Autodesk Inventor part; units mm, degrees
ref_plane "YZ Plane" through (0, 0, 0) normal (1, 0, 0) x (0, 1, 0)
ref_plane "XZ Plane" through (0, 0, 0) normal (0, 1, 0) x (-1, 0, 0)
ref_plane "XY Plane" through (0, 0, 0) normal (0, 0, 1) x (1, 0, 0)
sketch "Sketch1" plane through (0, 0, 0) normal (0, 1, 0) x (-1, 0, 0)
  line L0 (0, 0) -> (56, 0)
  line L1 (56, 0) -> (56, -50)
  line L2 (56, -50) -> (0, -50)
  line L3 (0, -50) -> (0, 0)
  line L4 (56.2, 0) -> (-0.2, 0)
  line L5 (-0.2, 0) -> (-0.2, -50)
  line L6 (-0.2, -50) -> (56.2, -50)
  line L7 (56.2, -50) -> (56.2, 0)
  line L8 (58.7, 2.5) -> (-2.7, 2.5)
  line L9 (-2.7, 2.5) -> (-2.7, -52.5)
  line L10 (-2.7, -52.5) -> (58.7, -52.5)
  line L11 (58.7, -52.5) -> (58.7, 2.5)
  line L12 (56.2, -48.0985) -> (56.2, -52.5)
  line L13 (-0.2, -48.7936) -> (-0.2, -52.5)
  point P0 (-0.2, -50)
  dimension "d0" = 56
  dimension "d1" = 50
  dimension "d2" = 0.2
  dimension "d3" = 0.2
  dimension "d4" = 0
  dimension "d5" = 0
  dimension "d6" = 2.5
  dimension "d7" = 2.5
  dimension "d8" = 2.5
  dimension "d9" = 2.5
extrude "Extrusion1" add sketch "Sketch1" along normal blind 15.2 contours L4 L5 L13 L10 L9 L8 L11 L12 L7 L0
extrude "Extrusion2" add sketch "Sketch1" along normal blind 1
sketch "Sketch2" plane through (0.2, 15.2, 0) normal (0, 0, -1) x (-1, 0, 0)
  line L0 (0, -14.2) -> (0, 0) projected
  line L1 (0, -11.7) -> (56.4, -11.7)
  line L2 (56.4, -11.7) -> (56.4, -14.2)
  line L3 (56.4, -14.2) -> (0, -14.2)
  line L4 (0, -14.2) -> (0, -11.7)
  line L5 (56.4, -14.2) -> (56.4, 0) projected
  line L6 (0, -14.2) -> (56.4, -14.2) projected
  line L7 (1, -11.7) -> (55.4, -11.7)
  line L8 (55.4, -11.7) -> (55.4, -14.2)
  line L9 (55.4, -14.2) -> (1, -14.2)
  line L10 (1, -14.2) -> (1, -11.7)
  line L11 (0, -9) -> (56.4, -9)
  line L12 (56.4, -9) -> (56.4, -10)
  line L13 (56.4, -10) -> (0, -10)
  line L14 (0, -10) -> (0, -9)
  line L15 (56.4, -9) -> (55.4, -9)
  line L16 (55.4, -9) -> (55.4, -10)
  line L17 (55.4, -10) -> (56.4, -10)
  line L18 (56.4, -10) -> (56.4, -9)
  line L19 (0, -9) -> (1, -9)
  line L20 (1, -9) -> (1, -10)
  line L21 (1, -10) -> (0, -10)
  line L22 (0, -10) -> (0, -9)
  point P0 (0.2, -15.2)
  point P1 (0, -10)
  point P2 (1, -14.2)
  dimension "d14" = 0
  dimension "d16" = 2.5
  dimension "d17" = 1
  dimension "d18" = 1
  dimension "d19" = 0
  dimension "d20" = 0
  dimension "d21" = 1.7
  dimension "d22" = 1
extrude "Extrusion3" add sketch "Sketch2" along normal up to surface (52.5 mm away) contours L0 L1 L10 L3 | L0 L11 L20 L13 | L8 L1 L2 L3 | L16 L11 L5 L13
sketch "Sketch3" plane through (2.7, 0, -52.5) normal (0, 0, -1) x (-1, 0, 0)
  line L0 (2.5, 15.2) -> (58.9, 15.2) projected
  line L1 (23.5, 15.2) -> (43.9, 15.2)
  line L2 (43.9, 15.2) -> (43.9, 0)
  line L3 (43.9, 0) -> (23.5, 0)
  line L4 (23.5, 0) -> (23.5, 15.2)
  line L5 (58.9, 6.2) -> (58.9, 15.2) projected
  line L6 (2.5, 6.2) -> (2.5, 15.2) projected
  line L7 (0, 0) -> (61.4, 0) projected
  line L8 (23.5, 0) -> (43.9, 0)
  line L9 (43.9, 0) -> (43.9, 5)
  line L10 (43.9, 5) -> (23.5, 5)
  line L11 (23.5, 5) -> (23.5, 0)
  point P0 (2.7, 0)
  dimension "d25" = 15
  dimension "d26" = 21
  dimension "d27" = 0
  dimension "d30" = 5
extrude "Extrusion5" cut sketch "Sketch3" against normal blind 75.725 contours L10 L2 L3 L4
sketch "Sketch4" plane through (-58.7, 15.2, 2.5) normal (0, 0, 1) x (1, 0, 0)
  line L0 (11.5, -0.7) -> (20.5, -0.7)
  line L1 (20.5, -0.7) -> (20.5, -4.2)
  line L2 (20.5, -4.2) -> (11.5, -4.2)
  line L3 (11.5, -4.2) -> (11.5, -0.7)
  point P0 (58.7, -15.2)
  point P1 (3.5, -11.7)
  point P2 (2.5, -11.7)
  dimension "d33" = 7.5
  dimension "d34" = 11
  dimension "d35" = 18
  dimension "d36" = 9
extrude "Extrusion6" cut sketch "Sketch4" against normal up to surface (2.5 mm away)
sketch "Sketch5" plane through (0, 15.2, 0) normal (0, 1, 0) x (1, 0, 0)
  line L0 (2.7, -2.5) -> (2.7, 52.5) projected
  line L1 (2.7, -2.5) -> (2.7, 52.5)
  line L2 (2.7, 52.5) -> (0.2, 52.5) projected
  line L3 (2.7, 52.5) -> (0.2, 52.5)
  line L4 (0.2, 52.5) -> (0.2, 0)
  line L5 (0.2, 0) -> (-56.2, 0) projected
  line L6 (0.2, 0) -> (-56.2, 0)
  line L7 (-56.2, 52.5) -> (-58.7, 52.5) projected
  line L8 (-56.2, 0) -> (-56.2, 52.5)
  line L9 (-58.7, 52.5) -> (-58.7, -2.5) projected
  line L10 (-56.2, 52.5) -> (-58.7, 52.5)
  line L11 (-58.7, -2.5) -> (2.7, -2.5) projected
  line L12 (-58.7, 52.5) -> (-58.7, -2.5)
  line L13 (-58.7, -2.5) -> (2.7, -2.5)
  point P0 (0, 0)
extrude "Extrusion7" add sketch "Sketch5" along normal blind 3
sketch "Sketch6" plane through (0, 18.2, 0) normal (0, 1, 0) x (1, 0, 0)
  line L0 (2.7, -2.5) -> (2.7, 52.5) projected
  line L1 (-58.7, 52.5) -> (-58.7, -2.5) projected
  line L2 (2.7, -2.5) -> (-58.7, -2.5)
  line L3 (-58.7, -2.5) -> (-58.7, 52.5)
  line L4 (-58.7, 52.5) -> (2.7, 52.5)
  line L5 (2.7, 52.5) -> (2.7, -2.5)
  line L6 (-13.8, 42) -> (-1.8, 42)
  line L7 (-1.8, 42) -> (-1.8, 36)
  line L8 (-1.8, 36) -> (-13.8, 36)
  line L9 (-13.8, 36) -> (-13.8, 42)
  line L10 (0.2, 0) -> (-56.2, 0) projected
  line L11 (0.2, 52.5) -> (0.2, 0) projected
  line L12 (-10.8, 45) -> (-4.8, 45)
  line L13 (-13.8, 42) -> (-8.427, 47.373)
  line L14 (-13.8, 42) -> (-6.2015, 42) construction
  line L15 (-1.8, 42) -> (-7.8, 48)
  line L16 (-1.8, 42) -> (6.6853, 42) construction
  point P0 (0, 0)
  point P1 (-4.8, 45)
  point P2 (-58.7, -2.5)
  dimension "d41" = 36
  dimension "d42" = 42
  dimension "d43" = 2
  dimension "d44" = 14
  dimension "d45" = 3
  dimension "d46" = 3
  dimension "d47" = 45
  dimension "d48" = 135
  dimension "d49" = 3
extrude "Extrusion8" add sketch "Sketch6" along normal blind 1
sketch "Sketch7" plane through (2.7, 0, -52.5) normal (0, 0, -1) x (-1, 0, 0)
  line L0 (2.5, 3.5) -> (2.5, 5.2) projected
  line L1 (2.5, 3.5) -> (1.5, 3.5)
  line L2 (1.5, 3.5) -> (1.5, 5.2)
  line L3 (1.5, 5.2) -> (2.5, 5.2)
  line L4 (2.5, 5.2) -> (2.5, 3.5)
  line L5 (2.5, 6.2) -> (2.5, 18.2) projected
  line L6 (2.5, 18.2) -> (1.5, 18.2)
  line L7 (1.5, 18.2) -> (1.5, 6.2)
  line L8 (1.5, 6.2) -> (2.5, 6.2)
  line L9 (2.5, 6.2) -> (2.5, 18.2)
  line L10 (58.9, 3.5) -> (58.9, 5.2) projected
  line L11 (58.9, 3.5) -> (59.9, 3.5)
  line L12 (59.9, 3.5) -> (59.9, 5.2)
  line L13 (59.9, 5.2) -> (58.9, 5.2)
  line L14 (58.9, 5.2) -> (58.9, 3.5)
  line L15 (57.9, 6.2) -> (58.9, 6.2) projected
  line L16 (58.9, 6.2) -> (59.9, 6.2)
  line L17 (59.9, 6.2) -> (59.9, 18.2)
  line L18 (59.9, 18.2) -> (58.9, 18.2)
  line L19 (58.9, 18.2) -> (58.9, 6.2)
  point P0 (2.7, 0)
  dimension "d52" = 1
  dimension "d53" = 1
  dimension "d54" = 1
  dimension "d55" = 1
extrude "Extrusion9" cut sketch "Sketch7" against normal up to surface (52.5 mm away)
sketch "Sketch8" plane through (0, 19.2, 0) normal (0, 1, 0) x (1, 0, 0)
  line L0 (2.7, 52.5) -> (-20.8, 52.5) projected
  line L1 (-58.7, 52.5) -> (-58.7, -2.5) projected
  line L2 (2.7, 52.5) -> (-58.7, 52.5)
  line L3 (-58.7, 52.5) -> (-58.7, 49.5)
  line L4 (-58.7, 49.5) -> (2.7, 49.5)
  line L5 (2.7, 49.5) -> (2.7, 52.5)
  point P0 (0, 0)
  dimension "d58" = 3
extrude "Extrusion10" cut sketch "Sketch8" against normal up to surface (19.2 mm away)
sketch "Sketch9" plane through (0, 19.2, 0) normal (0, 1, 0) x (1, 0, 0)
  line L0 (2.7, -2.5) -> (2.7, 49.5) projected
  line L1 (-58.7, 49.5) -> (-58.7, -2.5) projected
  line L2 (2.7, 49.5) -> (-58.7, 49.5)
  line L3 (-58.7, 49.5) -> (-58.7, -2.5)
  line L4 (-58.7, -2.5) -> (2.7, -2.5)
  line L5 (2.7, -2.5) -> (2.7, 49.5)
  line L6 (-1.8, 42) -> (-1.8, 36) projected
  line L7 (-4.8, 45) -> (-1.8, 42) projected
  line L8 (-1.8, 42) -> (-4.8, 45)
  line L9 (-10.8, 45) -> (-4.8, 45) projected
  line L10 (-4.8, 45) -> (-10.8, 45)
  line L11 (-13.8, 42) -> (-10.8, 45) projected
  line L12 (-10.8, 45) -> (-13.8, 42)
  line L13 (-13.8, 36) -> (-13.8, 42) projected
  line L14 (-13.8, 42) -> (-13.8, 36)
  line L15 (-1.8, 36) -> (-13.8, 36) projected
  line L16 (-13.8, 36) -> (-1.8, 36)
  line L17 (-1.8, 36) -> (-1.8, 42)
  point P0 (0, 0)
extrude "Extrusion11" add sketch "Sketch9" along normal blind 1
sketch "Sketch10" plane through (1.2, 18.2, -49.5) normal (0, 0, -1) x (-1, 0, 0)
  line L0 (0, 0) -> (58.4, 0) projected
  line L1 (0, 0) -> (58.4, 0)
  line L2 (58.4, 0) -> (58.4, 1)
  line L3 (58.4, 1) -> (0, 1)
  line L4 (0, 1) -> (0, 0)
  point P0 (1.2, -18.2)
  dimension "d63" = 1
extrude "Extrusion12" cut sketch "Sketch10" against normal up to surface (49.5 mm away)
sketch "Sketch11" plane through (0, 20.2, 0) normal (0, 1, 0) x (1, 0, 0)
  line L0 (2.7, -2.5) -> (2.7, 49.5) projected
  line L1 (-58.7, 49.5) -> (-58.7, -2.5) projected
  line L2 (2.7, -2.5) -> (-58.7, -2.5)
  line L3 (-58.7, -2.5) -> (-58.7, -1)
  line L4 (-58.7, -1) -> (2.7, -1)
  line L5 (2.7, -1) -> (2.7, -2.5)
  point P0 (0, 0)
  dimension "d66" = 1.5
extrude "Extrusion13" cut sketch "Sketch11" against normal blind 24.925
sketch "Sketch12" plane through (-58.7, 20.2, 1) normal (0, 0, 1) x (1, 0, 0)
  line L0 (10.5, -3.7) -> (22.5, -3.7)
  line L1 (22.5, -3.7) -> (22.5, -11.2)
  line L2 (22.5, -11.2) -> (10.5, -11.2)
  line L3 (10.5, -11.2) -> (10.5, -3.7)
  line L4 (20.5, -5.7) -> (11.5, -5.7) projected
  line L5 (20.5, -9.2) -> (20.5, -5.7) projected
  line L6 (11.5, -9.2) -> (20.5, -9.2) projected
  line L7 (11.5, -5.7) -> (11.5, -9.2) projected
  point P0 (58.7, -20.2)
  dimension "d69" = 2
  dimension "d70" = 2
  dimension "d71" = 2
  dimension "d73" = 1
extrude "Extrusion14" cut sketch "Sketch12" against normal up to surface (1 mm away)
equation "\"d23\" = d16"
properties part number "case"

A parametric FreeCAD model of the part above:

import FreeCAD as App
import Part
import Sketcher

V = App.Vector
Q = App.Units.Quantity

doc = App.newDocument("Part")
body = doc.addObject("PartDesign::Body", "Body")

sketch1 = body.newObject("Sketcher::SketchObject", "Sketch")
sketch1.AttachmentSupport = (doc.getObject("XZ_Plane"), [""])
sketch1.MapMode = "FlatFace"
sketch1.addGeometry([
    Part.LineSegment(V(0.2, 0, 0), V(-56.2, 0, 0)),
    Part.LineSegment(V(-56.2, 0, 0), V(-56.2, -52.5, 0)),
    Part.LineSegment(V(-56.2, -52.5, 0), V(-58.7, -52.5, 0)),
    Part.LineSegment(V(-58.7, -52.5, 0), V(-58.7, 2.5, 0)),
    Part.LineSegment(V(-58.7, 2.5, 0), V(2.7, 2.5, 0)),
    Part.LineSegment(V(2.7, 2.5, 0), V(2.7, -52.5, 0)),
    Part.LineSegment(V(2.7, -52.5, 0), V(0.2, -52.5, 0)),
    Part.LineSegment(V(0.2, -52.5, 0), V(0.2, 0, 0)),
], False)
sketch1.addConstraint([
    Sketcher.Constraint("Coincident", 0, 2, 1, 1),
    Sketcher.Constraint("Coincident", 1, 2, 2, 1),
    Sketcher.Constraint("Coincident", 2, 2, 3, 1),
    Sketcher.Constraint("Coincident", 3, 2, 4, 1),
    Sketcher.Constraint("Coincident", 4, 2, 5, 1),
    Sketcher.Constraint("Coincident", 5, 2, 6, 1),
    Sketcher.Constraint("Coincident", 6, 2, 7, 1),
    Sketcher.Constraint("Coincident", 7, 2, 0, 1),
    Sketcher.Constraint("Horizontal", 0),
    Sketcher.Constraint("Vertical", 1),
    Sketcher.Constraint("Horizontal", 2),
    Sketcher.Constraint("Vertical", 3),
    Sketcher.Constraint("Horizontal", 4),
    Sketcher.Constraint("Vertical", 5),
    Sketcher.Constraint("Horizontal", 6),
    Sketcher.Constraint("Vertical", 7),
    Sketcher.Constraint("PointOnObject", 0, 2, -1),
    Sketcher.Constraint("Horizontal", 2, 2, 5, 2),
    Sketcher.Constraint("Equal", 2, 6),
    Sketcher.Constraint("DistanceX", 2, 2, 2, 1, Q("2.5 mm")),
    Sketcher.Constraint("DistanceY", -1, 1, 3, 2, Q("2.5 mm")),
    Sketcher.Constraint("DistanceX", -1, 1, 6, 2, Q("0.2 mm")),
    Sketcher.Constraint("DistanceY", 3, 1, 3, 2, Q("55 mm")),
    Sketcher.Constraint("DistanceX", 0, 2, 0, 1, Q("56.4 mm")),
])
pad1 = body.newObject("PartDesign::Pad", "Pad")
pad1.Profile = sketch1
pad1.Length = 15.2
pad1.Reversed = True

sketch2 = body.newObject("Sketcher::SketchObject", "Sketch001")
sketch2.AttachmentSupport = (doc.getObject("XZ_Plane"), [""])
sketch2.MapMode = "FlatFace"
sketch2.addGeometry([
    Part.LineSegment(V(3, -52, 0), V(-59, -52, 0)),
    Part.LineSegment(V(-59, -52, 0), V(-59, 2, 0)),
    Part.LineSegment(V(-59, 2, 0), V(3, 2, 0)),
    Part.LineSegment(V(3, 2, 0), V(3, -52, 0)),
], False)
sketch2.addConstraint([
    Sketcher.Constraint("Coincident", 0, 2, 1, 1),
    Sketcher.Constraint("Coincident", 1, 2, 2, 1),
    Sketcher.Constraint("Coincident", 2, 2, 3, 1),
    Sketcher.Constraint("Coincident", 3, 2, 0, 1),
    Sketcher.Constraint("Horizontal", 0),
    Sketcher.Constraint("Vertical", 1),
    Sketcher.Constraint("Horizontal", 2),
    Sketcher.Constraint("Vertical", 3),
    Sketcher.Constraint("DistanceY", -1, 1, 1, 2, Q("2.5 mm")),
    Sketcher.Constraint("DistanceY", 1, 1, 1, 2, Q("55 mm")),
    Sketcher.Constraint("DistanceX", 0, 2, 0, 1, Q("61.4 mm")),
    Sketcher.Constraint("DistanceX", 0, 2, -1, 1, Q("58.7 mm")),
])
pad2 = body.newObject("PartDesign::Pad", "Pad001")
pad2.Profile = sketch2
pad2.Length = 1
pad2.Reversed = True

sketch3 = body.newObject("Sketcher::SketchObject", "Sketch002")
sketch3.AttachmentSupport = (doc.getObject("XY_Plane"), [""])
sketch3.MapMode = "FlatFace"
sketch3.addGeometry([
    Part.LineSegment(V(0.2, 3.5, 0), V(0.2, 1, 0)),
    Part.LineSegment(V(0.2, 1, 0), V(-0.8, 1, 0)),
    Part.LineSegment(V(-0.8, 1, 0), V(-0.8, 3.5, 0)),
    Part.LineSegment(V(-0.8, 3.5, 0), V(0.2, 3.5, 0)),
    Part.LineSegment(V(0.2, 6.2, 0), V(0.2, 5.2, 0)),
    Part.LineSegment(V(0.2, 5.2, 0), V(-0.8, 5.2, 0)),
    Part.LineSegment(V(-0.8, 5.2, 0), V(-0.8, 6.2, 0)),
    Part.LineSegment(V(-0.8, 6.2, 0), V(0.2, 6.2, 0)),
    Part.LineSegment(V(-55.2, 3.5, 0), V(-55.2, 1, 0)),
    Part.LineSegment(V(-55.2, 1, 0), V(-56.2, 1, 0)),
    Part.LineSegment(V(-56.2, 1, 0), V(-56.2, 3.5, 0)),
    Part.LineSegment(V(-56.2, 3.5, 0), V(-55.2, 3.5, 0)),
    Part.LineSegment(V(-55.2, 6.2, 0), V(-55.2, 5.2, 0)),
    Part.LineSegment(V(-55.2, 5.2, 0), V(-56.2, 5.2, 0)),
    Part.LineSegment(V(-56.2, 5.2, 0), V(-56.2, 6.2, 0)),
    Part.LineSegment(V(-56.2, 6.2, 0), V(-55.2, 6.2, 0)),
], False)
sketch3.addConstraint([
    Sketcher.Constraint("Coincident", 0, 2, 1, 1),
    Sketcher.Constraint("Coincident", 1, 2, 2, 1),
    Sketcher.Constraint("Coincident", 2, 2, 3, 1),
    Sketcher.Constraint("Coincident", 3, 2, 0, 1),
    Sketcher.Constraint("Coincident", 4, 2, 5, 1),
    Sketcher.Constraint("Coincident", 5, 2, 6, 1),
    Sketcher.Constraint("Coincident", 6, 2, 7, 1),
    Sketcher.Constraint("Coincident", 7, 2, 4, 1),
    Sketcher.Constraint("Coincident", 8, 2, 9, 1),
    Sketcher.Constraint("Coincident", 9, 2, 10, 1),
    Sketcher.Constraint("Coincident", 10, 2, 11, 1),
    Sketcher.Constraint("Coincident", 11, 2, 8, 1),
    Sketcher.Constraint("Coincident", 12, 2, 13, 1),
    Sketcher.Constraint("Coincident", 13, 2, 14, 1),
    Sketcher.Constraint("Coincident", 14, 2, 15, 1),
    Sketcher.Constraint("Coincident", 15, 2, 12, 1),
    Sketcher.Constraint("Vertical", 0),
    Sketcher.Constraint("Horizontal", 1),
    Sketcher.Constraint("Vertical", 2),
    Sketcher.Constraint("Horizontal", 3),
    Sketcher.Constraint("Vertical", 4),
    Sketcher.Constraint("Horizontal", 5),
    Sketcher.Constraint("Vertical", 6),
    Sketcher.Constraint("Horizontal", 7),
    Sketcher.Constraint("Vertical", 8),
    Sketcher.Constraint("Horizontal", 9),
    Sketcher.Constraint("Vertical", 10),
    Sketcher.Constraint("Horizontal", 11),
    Sketcher.Constraint("Vertical", 12),
    Sketcher.Constraint("Horizontal", 13),
    Sketcher.Constraint("Vertical", 14),
    Sketcher.Constraint("Horizontal", 15),
    Sketcher.Constraint("Horizontal", 1, 2, 8, 2),
    Sketcher.Constraint("Horizontal", 3, 2, 10, 2),
    Sketcher.Constraint("Horizontal", 5, 2, 12, 2),
    Sketcher.Constraint("Horizontal", 7, 2, 14, 2),
    Sketcher.Constraint("Vertical", 3, 2, 4, 2),
    Sketcher.Constraint("Vertical", 2, 2, 5, 2),
    Sketcher.Constraint("Vertical", 11, 2, 12, 2),
    Sketcher.Constraint("Vertical", 10, 2, 13, 2),
    Sketcher.Constraint("Equal", 7, 9),
    Sketcher.Constraint("Equal", 15, 4),
    Sketcher.Constraint("DistanceX", 1, 2, 1, 1, Q("1 mm")),
    Sketcher.Constraint("DistanceY", 0, 2, 0, 1, Q("2.5 mm")),
    Sketcher.Constraint("DistanceY", -1, 1, 0, 2, Q("1 mm")),
    Sketcher.Constraint("DistanceY", 3, 2, 4, 2, Q("1.7 mm")),
    Sketcher.Constraint("DistanceX", -1, 1, 0, 2, Q("0.2 mm")),
    Sketcher.Constraint("DistanceX", 8, 2, -1, 1, Q("55.2 mm")),
])
pad3 = body.newObject("PartDesign::Pad", "Pad002")
pad3.Profile = sketch3
pad3.Length = 52.5
pad3.Reversed = True

sketch4 = body.newObject("Sketcher::SketchObject", "Sketch003")
sketch4.AttachmentSupport = (doc.getObject("XY_Plane"), [""])
sketch4.MapMode = "FlatFace"
sketch4.AttachmentOffset = App.Placement(V(0, 0, -52.5), App.Rotation())
sketch4.addGeometry([
    Part.LineSegment(V(-41, 5, 0), V(-21, 5, 0)),
    Part.LineSegment(V(-21, 5, 0), V(-21, 0, 0)),
    Part.LineSegment(V(-21, 0, 0), V(-41, 0, 0)),
    Part.LineSegment(V(-41, 0, 0), V(-41, 5, 0)),
], False)
sketch4.addConstraint([
    Sketcher.Constraint("Coincident", 0, 2, 1, 1),
    Sketcher.Constraint("Coincident", 1, 2, 2, 1),
    Sketcher.Constraint("Coincident", 2, 2, 3, 1),
    Sketcher.Constraint("Coincident", 3, 2, 0, 1),
    Sketcher.Constraint("Horizontal", 0),
    Sketcher.Constraint("Vertical", 1),
    Sketcher.Constraint("Horizontal", 2),
    Sketcher.Constraint("Vertical", 3),
    Sketcher.Constraint("PointOnObject", 1, 2, -1),
    Sketcher.Constraint("DistanceY", 1, 2, 1, 1, Q("5 mm")),
    Sketcher.Constraint("DistanceX", 0, 1, 0, 2, Q("20.4 mm")),
    Sketcher.Constraint("DistanceX", 0, 2, -1, 1, Q("20.8 mm")),
])
pocket1 = body.newObject("PartDesign::Pocket", "Pocket")
pocket1.Profile = sketch4
pocket1.Length = 75.725
pocket1.Reversed = True

sketch5 = body.newObject("Sketcher::SketchObject", "Sketch004")
sketch5.AttachmentSupport = (doc.getObject("XY_Plane"), [""])
sketch5.MapMode = "FlatFace"
sketch5.AttachmentOffset = App.Placement(V(0, 0, 2.5), App.Rotation())
sketch5.addGeometry([
    Part.LineSegment(V(-38.2, 14.5, 0), V(-47.2, 14.5, 0)),
    Part.LineSegment(V(-47.2, 14.5, 0), V(-47.2, 11, 0)),
    Part.LineSegment(V(-47.2, 11, 0), V(-38.2, 11, 0)),
    Part.LineSegment(V(-38.2, 11, 0), V(-38.2, 14.5, 0)),
], False)
sketch5.addConstraint([
    Sketcher.Constraint("Coincident", 0, 2, 1, 1),
    Sketcher.Constraint("Coincident", 1, 2, 2, 1),
    Sketcher.Constraint("Coincident", 2, 2, 3, 1),
    Sketcher.Constraint("Coincident", 3, 2, 0, 1),
    Sketcher.Constraint("Horizontal", 0),
    Sketcher.Constraint("Vertical", 1),
    Sketcher.Constraint("Horizontal", 2),
    Sketcher.Constraint("Vertical", 3),
    Sketcher.Constraint("DistanceX", 0, 2, 0, 1, Q("9 mm")),
    Sketcher.Constraint("DistanceY", -1, 1, 1, 2, Q("11 mm")),
    Sketcher.Constraint("DistanceY", 1, 2, 1, 1, Q("3.5 mm")),
    Sketcher.Constraint("DistanceX", 0, 2, -1, 1, Q("47.2 mm")),
])
pocket2 = body.newObject("PartDesign::Pocket", "Pocket001")
pocket2.Profile = sketch5
pocket2.Length = 2.5

sketch6 = body.newObject("Sketcher::SketchObject", "Sketch005")
sketch6.AttachmentSupport = (doc.getObject("XZ_Plane"), [""])
sketch6.MapMode = "FlatFace"
sketch6.AttachmentOffset = App.Placement(V(0, 0, -15.2), App.Rotation())
sketch6.addGeometry([
    Part.LineSegment(V(-58.7, 2.5, 0), V(2.7, 2.5, 0)),
    Part.LineSegment(V(2.7, 2.5, 0), V(2.7, -52.5, 0)),
    Part.LineSegment(V(2.7, -52.5, 0), V(0.2, -52.5, 0)),
    Part.LineSegment(V(0.2, -52.5, 0), V(0.2, 0, 0)),
    Part.LineSegment(V(0.2, 0, 0), V(-56.2, 0, 0)),
    Part.LineSegment(V(-56.2, 0, 0), V(-56.2, -52.5, 0)),
    Part.LineSegment(V(-56.2, -52.5, 0), V(-58.7, -52.5, 0)),
    Part.LineSegment(V(-58.7, -52.5, 0), V(-58.7, 2.5, 0)),
], False)
sketch6.addConstraint([
    Sketcher.Constraint("Coincident", 0, 2, 1, 1),
    Sketcher.Constraint("Coincident", 1, 2, 2, 1),
    Sketcher.Constraint("Coincident", 2, 2, 3, 1),
    Sketcher.Constraint("Coincident", 3, 2, 4, 1),
    Sketcher.Constraint("Coincident", 4, 2, 5, 1),
    Sketcher.Constraint("Coincident", 5, 2, 6, 1),
    Sketcher.Constraint("Coincident", 6, 2, 7, 1),
    Sketcher.Constraint("Coincident", 7, 2, 0, 1),
    Sketcher.Constraint("Horizontal", 0),
    Sketcher.Constraint("Vertical", 1),
    Sketcher.Constraint("Horizontal", 2),
    Sketcher.Constraint("Vertical", 3),
    Sketcher.Constraint("Horizontal", 4),
    Sketcher.Constraint("Vertical", 5),
    Sketcher.Constraint("Horizontal", 6),
    Sketcher.Constraint("Vertical", 7),
    Sketcher.Constraint("PointOnObject", 3, 2, -1),
    Sketcher.Constraint("Horizontal", 2, 2, 5, 2),
    Sketcher.Constraint("Equal", 2, 6),
    Sketcher.Constraint("DistanceY", 1, 2, 1, 1, Q("55 mm")),
    Sketcher.Constraint("DistanceX", 0, 1, 0, 2, Q("61.4 mm")),
    Sketcher.Constraint("DistanceX", 2, 2, 2, 1, Q("2.5 mm")),
    Sketcher.Constraint("DistanceY", 3, 1, 3, 2, Q("52.5 mm")),
    Sketcher.Constraint("DistanceX", -1, 1, 0, 2, Q("2.7 mm")),
])
pad4 = body.newObject("PartDesign::Pad", "Pad003")
pad4.Profile = sketch6
pad4.Length = 3
pad4.Reversed = True

sketch7 = body.newObject("Sketcher::SketchObject", "Sketch006")
sketch7.AttachmentSupport = (doc.getObject("XZ_Plane"), [""])
sketch7.MapMode = "FlatFace"
sketch7.AttachmentOffset = App.Placement(V(0, 0, -18.2), App.Rotation())
sketch7.addGeometry([
    Part.LineSegment(V(-58.7, 2.5, 0), V(2.7, 2.5, 0)),
    Part.LineSegment(V(2.7, 2.5, 0), V(2.7, -52.5, 0)),
    Part.LineSegment(V(2.7, -52.5, 0), V(-58.7, -52.5, 0)),
    Part.LineSegment(V(-58.7, -52.5, 0), V(-58.7, 2.5, 0)),
    Part.LineSegment(V(-13.8, -36, 0), V(-13.8, -42, 0)),
    Part.LineSegment(V(-13.8, -42, 0), V(-10.8, -45, 0)),
    Part.LineSegment(V(-10.8, -45, 0), V(-4.8, -45, 0)),
    Part.LineSegment(V(-4.8, -45, 0), V(-1.8, -42, 0)),
    Part.LineSegment(V(-1.8, -42, 0), V(-1.8, -36, 0)),
    Part.LineSegment(V(-1.8, -36, 0), V(-13.8, -36, 0)),
], False)
sketch7.addConstraint([
    Sketcher.Constraint("Coincident", 0, 2, 1, 1),
    Sketcher.Constraint("Coincident", 1, 2, 2, 1),
    Sketcher.Constraint("Coincident", 2, 2, 3, 1),
    Sketcher.Constraint("Coincident", 3, 2, 0, 1),
    Sketcher.Constraint("Coincident", 4, 2, 5, 1),
    Sketcher.Constraint("Coincident", 5, 2, 6, 1),
    Sketcher.Constraint("Coincident", 6, 2, 7, 1),
    Sketcher.Constraint("Coincident", 7, 2, 8, 1),
    Sketcher.Constraint("Coincident", 8, 2, 9, 1),
    Sketcher.Constraint("Coincident", 9, 2, 4, 1),
    Sketcher.Constraint("Horizontal", 0),
    Sketcher.Constraint("Vertical", 1),
    Sketcher.Constraint("Horizontal", 2),
    Sketcher.Constraint("Vertical", 3),
    Sketcher.Constraint("Vertical", 4),
    Sketcher.Constraint("Horizontal", 6),
    Sketcher.Constraint("Vertical", 8),
    Sketcher.Constraint("Horizontal", 9),
    Sketcher.Constraint("Perpendicular", 5, 7),
    Sketcher.Constraint("Horizontal", 4, 2, 7, 2),
    Sketcher.Constraint("Equal", 6, 4),
    Sketcher.Constraint("Equal", 5, 7),
    Sketcher.Constraint("DistanceY", 4, 2, -1, 1, Q("42 mm")),
    Sketcher.Constraint("DistanceY", 5, 2, -1, 1, Q("45 mm")),
    Sketcher.Constraint("DistanceY", 8, 2, -1, 1, Q("36 mm")),
    Sketcher.Constraint("DistanceY", 1, 2, 1, 1, Q("55 mm")),
    Sketcher.Constraint("DistanceX", 0, 1, 0, 2, Q("61.4 mm")),
    Sketcher.Constraint("DistanceX", -1, 1, 0, 2, Q("2.7 mm")),
    Sketcher.Constraint("DistanceY", -1, 1, 0, 2, Q("2.5 mm")),
    Sketcher.Constraint("DistanceX", 4, 2, -1, 1, Q("13.8 mm")),
])
pad5 = body.newObject("PartDesign::Pad", "Pad004")
pad5.Profile = sketch7
pad5.Length = 1
pad5.Reversed = True

sketch8 = body.newObject("Sketcher::SketchObject", "Sketch007")
sketch8.AttachmentSupport = (doc.getObject("XY_Plane"), [""])
sketch8.MapMode = "FlatFace"
sketch8.AttachmentOffset = App.Placement(V(0, 0, -52.5), App.Rotation())
sketch8.addGeometry([
    Part.LineSegment(V(1.2, 3.5, 0), V(0.2, 3.5, 0)),
    Part.LineSegment(V(0.2, 3.5, 0), V(0.2, 5.2, 0)),
    Part.LineSegment(V(0.2, 5.2, 0), V(1.2, 5.2, 0)),
    Part.LineSegment(V(1.2, 5.2, 0), V(1.2, 3.5, 0)),
    Part.LineSegment(V(1.2, 6.2, 0), V(0.2, 6.2, 0)),
    Part.LineSegment(V(0.2, 6.2, 0), V(0.2, 18.2, 0)),
    Part.LineSegment(V(0.2, 18.2, 0), V(1.2, 18.2, 0)),
    Part.LineSegment(V(1.2, 18.2, 0), V(1.2, 6.2, 0)),
    Part.LineSegment(V(-56.2, 5.2, 0), V(-56.2, 3.5, 0)),
    Part.LineSegment(V(-56.2, 3.5, 0), V(-57.2, 3.5, 0)),
    Part.LineSegment(V(-57.2, 3.5, 0), V(-57.2, 5.2, 0)),
    Part.LineSegment(V(-57.2, 5.2, 0), V(-56.2, 5.2, 0)),
    Part.LineSegment(V(-56.2, 18.2, 0), V(-56.2, 6.2, 0)),
    Part.LineSegment(V(-56.2, 6.2, 0), V(-57.2, 6.2, 0)),
    Part.LineSegment(V(-57.2, 6.2, 0), V(-57.2, 18.2, 0)),
    Part.LineSegment(V(-57.2, 18.2, 0), V(-56.2, 18.2, 0)),
], False)
sketch8.addConstraint([
    Sketcher.Constraint("Coincident", 0, 2, 1, 1),
    Sketcher.Constraint("Coincident", 1, 2, 2, 1),
    Sketcher.Constraint("Coincident", 2, 2, 3, 1),
    Sketcher.Constraint("Coincident", 3, 2, 0, 1),
    Sketcher.Constraint("Coincident", 4, 2, 5, 1),
    Sketcher.Constraint("Coincident", 5, 2, 6, 1),
    Sketcher.Constraint("Coincident", 6, 2, 7, 1),
    Sketcher.Constraint("Coincident", 7, 2, 4, 1),
    Sketcher.Constraint("Coincident", 8, 2, 9, 1),
    Sketcher.Constraint("Coincident", 9, 2, 10, 1),
    Sketcher.Constraint("Coincident", 10, 2, 11, 1),
    Sketcher.Constraint("Coincident", 11, 2, 8, 1),
    Sketcher.Constraint("Coincident", 12, 2, 13, 1),
    Sketcher.Constraint("Coincident", 13, 2, 14, 1),
    Sketcher.Constraint("Coincident", 14, 2, 15, 1),
    Sketcher.Constraint("Coincident", 15, 2, 12, 1),
    Sketcher.Constraint("Horizontal", 0),
    Sketcher.Constraint("Vertical", 1),
    Sketcher.Constraint("Horizontal", 2),
    Sketcher.Constraint("Vertical", 3),
    Sketcher.Constraint("Horizontal", 4),
    Sketcher.Constraint("Vertical", 5),
    Sketcher.Constraint("Horizontal", 6),
    Sketcher.Constraint("Vertical", 7),
    Sketcher.Constraint("Vertical", 8),
    Sketcher.Constraint("Horizontal", 9),
    Sketcher.Constraint("Vertical", 10),
    Sketcher.Constraint("Horizontal", 11),
    Sketcher.Constraint("Vertical", 12),
    Sketcher.Constraint("Horizontal", 13),
    Sketcher.Constraint("Vertical", 14),
    Sketcher.Constraint("Horizontal", 15),
    Sketcher.Constraint("Horizontal", 3, 2, 8, 2),
    Sketcher.Constraint("Horizontal", 2, 2, 10, 2),
    Sketcher.Constraint("Horizontal", 7, 2, 12, 2),
    Sketcher.Constraint("Horizontal", 6, 2, 14, 2),
    Sketcher.Constraint("Vertical", 1, 2, 4, 2),
    Sketcher.Constraint("Vertical", 3, 2, 6, 2),
    Sketcher.Constraint("Vertical", 11, 2, 12, 2),
    Sketcher.Constraint("Vertical", 10, 2, 13, 2),
    Sketcher.Constraint("Equal", 6, 9),
    Sketcher.Constraint("DistanceX", 0, 2, 0, 1, Q("1 mm")),
    Sketcher.Constraint("DistanceY", 1, 2, 4, 2, Q("1 mm")),
    Sketcher.Constraint("DistanceY", 5, 1, 5, 2, Q("12 mm")),
    Sketcher.Constraint("DistanceY", 1, 1, 1, 2, Q("1.7 mm")),
    Sketcher.Constraint("DistanceX", -1, 1, 0, 2, Q("0.2 mm")),
    Sketcher.Constraint("DistanceY", -1, 1, 0, 2, Q("3.5 mm")),
    Sketcher.Constraint("DistanceX", 8, 2, -1, 1, Q("56.2 mm")),
])
pocket3 = body.newObject("PartDesign::Pocket", "Pocket002")
pocket3.Profile = sketch8
pocket3.Length = 52.5
pocket3.Reversed = True

sketch9 = body.newObject("Sketcher::SketchObject", "Sketch008")
sketch9.AttachmentSupport = (doc.getObject("XZ_Plane"), [""])
sketch9.MapMode = "FlatFace"
sketch9.AttachmentOffset = App.Placement(V(0, 0, -19.2), App.Rotation())
sketch9.addGeometry([
    Part.LineSegment(V(2.7, -49.5, 0), V(2.7, -52.5, 0)),
    Part.LineSegment(V(2.7, -52.5, 0), V(-58.7, -52.5, 0)),
    Part.LineSegment(V(-58.7, -52.5, 0), V(-58.7, -49.5, 0)),
    Part.LineSegment(V(-58.7, -49.5, 0), V(2.7, -49.5, 0)),
], False)
sketch9.addConstraint([
    Sketcher.Constraint("Coincident", 0, 2, 1, 1),
    Sketcher.Constraint("Coincident", 1, 2, 2, 1),
    Sketcher.Constraint("Coincident", 2, 2, 3, 1),
    Sketcher.Constraint("Coincident", 3, 2, 0, 1),
    Sketcher.Constraint("Vertical", 0),
    Sketcher.Constraint("Horizontal", 1),
    Sketcher.Constraint("Vertical", 2),
    Sketcher.Constraint("Horizontal", 3),
    Sketcher.Constraint("DistanceY", 0, 2, 0, 1, Q("3 mm")),
    Sketcher.Constraint("DistanceX", 1, 2, 1, 1, Q("61.4 mm")),
    Sketcher.Constraint("DistanceX", -1, 1, 0, 2, Q("2.7 mm")),
    Sketcher.Constraint("DistanceY", 0, 2, -1, 1, Q("52.5 mm")),
])
pocket4 = body.newObject("PartDesign::Pocket", "Pocket003")
pocket4.Profile = sketch9
pocket4.Length = 19.2
pocket4.Reversed = True

sketch10 = body.newObject("Sketcher::SketchObject", "Sketch009")
sketch10.AttachmentSupport = (doc.getObject("XZ_Plane"), [""])
sketch10.MapMode = "FlatFace"
sketch10.AttachmentOffset = App.Placement(V(0, 0, -19.2), App.Rotation())
sketch10.addGeometry([
    Part.LineSegment(V(-58.7, 2.5, 0), V(2.7, 2.5, 0)),
    Part.LineSegment(V(2.7, 2.5, 0), V(2.7, -49.5, 0)),
    Part.LineSegment(V(2.7, -49.5, 0), V(-58.7, -49.5, 0)),
    Part.LineSegment(V(-58.7, -49.5, 0), V(-58.7, 2.5, 0)),
    Part.LineSegment(V(-4.8, -45, 0), V(-1.8, -42, 0)),
    Part.LineSegment(V(-1.8, -42, 0), V(-1.8, -36, 0)),
    Part.LineSegment(V(-1.8, -36, 0), V(-13.8, -36, 0)),
    Part.LineSegment(V(-13.8, -36, 0), V(-13.8, -42, 0)),
    Part.LineSegment(V(-13.8, -42, 0), V(-10.8, -45, 0)),
    Part.LineSegment(V(-10.8, -45, 0), V(-4.8, -45, 0)),
], False)
sketch10.addConstraint([
    Sketcher.Constraint("Coincident", 0, 2, 1, 1),
    Sketcher.Constraint("Coincident", 1, 2, 2, 1),
    Sketcher.Constraint("Coincident", 2, 2, 3, 1),
    Sketcher.Constraint("Coincident", 3, 2, 0, 1),
    Sketcher.Constraint("Coincident", 4, 2, 5, 1),
    Sketcher.Constraint("Coincident", 5, 2, 6, 1),
    Sketcher.Constraint("Coincident", 6, 2, 7, 1),
    Sketcher.Constraint("Coincident", 7, 2, 8, 1),
    Sketcher.Constraint("Coincident", 8, 2, 9, 1),
    Sketcher.Constraint("Coincident", 9, 2, 4, 1),
    Sketcher.Constraint("Horizontal", 0),
    Sketcher.Constraint("Vertical", 1),
    Sketcher.Constraint("Horizontal", 2),
    Sketcher.Constraint("Vertical", 3),
    Sketcher.Constraint("Vertical", 5),
    Sketcher.Constraint("Horizontal", 6),
    Sketcher.Constraint("Vertical", 7),
    Sketcher.Constraint("Horizontal", 9),
    Sketcher.Constraint("Perpendicular", 4, 8),
    Sketcher.Constraint("Horizontal", 4, 2, 7, 2),
    Sketcher.Constraint("Equal", 9, 5),
    Sketcher.Constraint("Equal", 4, 8),
    Sketcher.Constraint("DistanceX", 6, 2, 6, 1, Q("12 mm")),
    Sketcher.Constraint("DistanceX", 9, 1, 9, 2, Q("6 mm")),
    Sketcher.Constraint("DistanceY", 1, 2, 1, 1, Q("52 mm")),
    Sketcher.Constraint("DistanceX", 0, 1, 0, 2, Q("61.4 mm")),
    Sketcher.Constraint("DistanceY", 4, 2, -1, 1, Q("42 mm")),
    Sketcher.Constraint("DistanceX", -1, 1, 0, 2, Q("2.7 mm")),
    Sketcher.Constraint("DistanceY", -1, 1, 0, 2, Q("2.5 mm")),
    Sketcher.Constraint("DistanceX", 4, 2, -1, 1, Q("1.8 mm")),
])
pad6 = body.newObject("PartDesign::Pad", "Pad005")
pad6.Profile = sketch10
pad6.Length = 1
pad6.Reversed = True

sketch11 = body.newObject("Sketcher::SketchObject", "Sketch010")
sketch11.AttachmentSupport = (doc.getObject("XY_Plane"), [""])
sketch11.MapMode = "FlatFace"
sketch11.AttachmentOffset = App.Placement(V(0, 0, -49.5), App.Rotation())
sketch11.addGeometry([
    Part.LineSegment(V(1.2, 19.2, 0), V(1.2, 18.2, 0)),
    Part.LineSegment(V(1.2, 18.2, 0), V(-57.2, 18.2, 0)),
    Part.LineSegment(V(-57.2, 18.2, 0), V(-57.2, 19.2, 0)),
    Part.LineSegment(V(-57.2, 19.2, 0), V(1.2, 19.2, 0)),
], False)
sketch11.addConstraint([
    Sketcher.Constraint("Coincident", 0, 2, 1, 1),
    Sketcher.Constraint("Coincident", 1, 2, 2, 1),
    Sketcher.Constraint("Coincident", 2, 2, 3, 1),
    Sketcher.Constraint("Coincident", 3, 2, 0, 1),
    Sketcher.Constraint("Vertical", 0),
    Sketcher.Constraint("Horizontal", 1),
    Sketcher.Constraint("Vertical", 2),
    Sketcher.Constraint("Horizontal", 3),
    Sketcher.Constraint("DistanceY", 0, 2, 0, 1, Q("1 mm")),
    Sketcher.Constraint("DistanceX", 1, 2, 1, 1, Q("58.4 mm")),
    Sketcher.Constraint("DistanceX", -1, 1, 0, 2, Q("1.2 mm")),
    Sketcher.Constraint("DistanceY", -1, 1, 0, 2, Q("18.2 mm")),
])
pocket5 = body.newObject("PartDesign::Pocket", "Pocket004")
pocket5.Profile = sketch11
pocket5.Length = 49.5
pocket5.Reversed = True

sketch12 = body.newObject("Sketcher::SketchObject", "Sketch011")
sketch12.AttachmentSupport = (doc.getObject("XZ_Plane"), [""])
sketch12.MapMode = "FlatFace"
sketch12.AttachmentOffset = App.Placement(V(0, 0, -20.2), App.Rotation())
sketch12.addGeometry([
    Part.LineSegment(V(-58.7, 2.5, 0), V(2.7, 2.5, 0)),
    Part.LineSegment(V(2.7, 2.5, 0), V(2.7, 1, 0)),
    Part.LineSegment(V(2.7, 1, 0), V(-58.7, 1, 0)),
    Part.LineSegment(V(-58.7, 1, 0), V(-58.7, 2.5, 0)),
], False)
sketch12.addConstraint([
    Sketcher.Constraint("Coincident", 0, 2, 1, 1),
    Sketcher.Constraint("Coincident", 1, 2, 2, 1),
    Sketcher.Constraint("Coincident", 2, 2, 3, 1),
    Sketcher.Constraint("Coincident", 3, 2, 0, 1),
    Sketcher.Constraint("Horizontal", 0),
    Sketcher.Constraint("Vertical", 1),
    Sketcher.Constraint("Horizontal", 2),
    Sketcher.Constraint("Vertical", 3),
    Sketcher.Constraint("DistanceY", 1, 2, 1, 1, Q("1.5 mm")),
    Sketcher.Constraint("DistanceX", 0, 1, 0, 2, Q("61.4 mm")),
    Sketcher.Constraint("DistanceY", -1, 1, 1, 2, Q("1 mm")),
    Sketcher.Constraint("DistanceX", -1, 1, 0, 2, Q("2.7 mm")),
])
pocket6 = body.newObject("PartDesign::Pocket", "Pocket005")
pocket6.Profile = sketch12
pocket6.Length = 24.925
pocket6.Reversed = True

sketch13 = body.newObject("Sketcher::SketchObject", "Sketch012")
sketch13.AttachmentSupport = (doc.getObject("XY_Plane"), [""])
sketch13.MapMode = "FlatFace"
sketch13.AttachmentOffset = App.Placement(V(0, 0, 1), App.Rotation())
sketch13.addGeometry([
    Part.LineSegment(V(-36.2, 16.5, 0), V(-48.2, 16.5, 0)),
    Part.LineSegment(V(-48.2, 16.5, 0), V(-48.2, 9, 0)),
    Part.LineSegment(V(-48.2, 9, 0), V(-36.2, 9, 0)),
    Part.LineSegment(V(-36.2, 9, 0), V(-36.2, 16.5, 0)),
    Part.LineSegment(V(-47.2, 14.5, 0), V(-38.2, 14.5, 0)),
    Part.LineSegment(V(-38.2, 14.5, 0), V(-38.2, 11, 0)),
    Part.LineSegment(V(-38.2, 11, 0), V(-47.2, 11, 0)),
    Part.LineSegment(V(-47.2, 11, 0), V(-47.2, 14.5, 0)),
], False)
sketch13.addConstraint([
    Sketcher.Constraint("Coincident", 0, 2, 1, 1),
    Sketcher.Constraint("Coincident", 1, 2, 2, 1),
    Sketcher.Constraint("Coincident", 2, 2, 3, 1),
    Sketcher.Constraint("Coincident", 3, 2, 0, 1),
    Sketcher.Constraint("Coincident", 4, 2, 5, 1),
    Sketcher.Constraint("Coincident", 5, 2, 6, 1),
    Sketcher.Constraint("Coincident", 6, 2, 7, 1),
    Sketcher.Constraint("Coincident", 7, 2, 4, 1),
    Sketcher.Constraint("Horizontal", 0),
    Sketcher.Constraint("Vertical", 1),
    Sketcher.Constraint("Horizontal", 2),
    Sketcher.Constraint("Vertical", 3),
    Sketcher.Constraint("Horizontal", 4),
    Sketcher.Constraint("Vertical", 5),
    Sketcher.Constraint("Horizontal", 6),
    Sketcher.Constraint("Vertical", 7),
    Sketcher.Constraint("DistanceX", 4, 2, 3, 2, Q("2 mm")),
    Sketcher.Constraint("DistanceY", 4, 2, 3, 2, Q("2 mm")),
    Sketcher.Constraint("DistanceY", 2, 2, 5, 2, Q("2 mm")),
    Sketcher.Constraint("DistanceX", 1, 2, 6, 2, Q("1 mm")),
    Sketcher.Constraint("DistanceX", 0, 2, 0, 1, Q("12 mm")),
    Sketcher.Constraint("DistanceY", 1, 2, 1, 1, Q("7.5 mm")),
    Sketcher.Constraint("DistanceY", -1, 1, 1, 2, Q("9 mm")),
    Sketcher.Constraint("DistanceX", 0, 2, -1, 1, Q("48.2 mm")),
])
pocket7 = body.newObject("PartDesign::Pocket", "Pocket006")
pocket7.Profile = sketch13
pocket7.Length = 1

doc.recompute()
